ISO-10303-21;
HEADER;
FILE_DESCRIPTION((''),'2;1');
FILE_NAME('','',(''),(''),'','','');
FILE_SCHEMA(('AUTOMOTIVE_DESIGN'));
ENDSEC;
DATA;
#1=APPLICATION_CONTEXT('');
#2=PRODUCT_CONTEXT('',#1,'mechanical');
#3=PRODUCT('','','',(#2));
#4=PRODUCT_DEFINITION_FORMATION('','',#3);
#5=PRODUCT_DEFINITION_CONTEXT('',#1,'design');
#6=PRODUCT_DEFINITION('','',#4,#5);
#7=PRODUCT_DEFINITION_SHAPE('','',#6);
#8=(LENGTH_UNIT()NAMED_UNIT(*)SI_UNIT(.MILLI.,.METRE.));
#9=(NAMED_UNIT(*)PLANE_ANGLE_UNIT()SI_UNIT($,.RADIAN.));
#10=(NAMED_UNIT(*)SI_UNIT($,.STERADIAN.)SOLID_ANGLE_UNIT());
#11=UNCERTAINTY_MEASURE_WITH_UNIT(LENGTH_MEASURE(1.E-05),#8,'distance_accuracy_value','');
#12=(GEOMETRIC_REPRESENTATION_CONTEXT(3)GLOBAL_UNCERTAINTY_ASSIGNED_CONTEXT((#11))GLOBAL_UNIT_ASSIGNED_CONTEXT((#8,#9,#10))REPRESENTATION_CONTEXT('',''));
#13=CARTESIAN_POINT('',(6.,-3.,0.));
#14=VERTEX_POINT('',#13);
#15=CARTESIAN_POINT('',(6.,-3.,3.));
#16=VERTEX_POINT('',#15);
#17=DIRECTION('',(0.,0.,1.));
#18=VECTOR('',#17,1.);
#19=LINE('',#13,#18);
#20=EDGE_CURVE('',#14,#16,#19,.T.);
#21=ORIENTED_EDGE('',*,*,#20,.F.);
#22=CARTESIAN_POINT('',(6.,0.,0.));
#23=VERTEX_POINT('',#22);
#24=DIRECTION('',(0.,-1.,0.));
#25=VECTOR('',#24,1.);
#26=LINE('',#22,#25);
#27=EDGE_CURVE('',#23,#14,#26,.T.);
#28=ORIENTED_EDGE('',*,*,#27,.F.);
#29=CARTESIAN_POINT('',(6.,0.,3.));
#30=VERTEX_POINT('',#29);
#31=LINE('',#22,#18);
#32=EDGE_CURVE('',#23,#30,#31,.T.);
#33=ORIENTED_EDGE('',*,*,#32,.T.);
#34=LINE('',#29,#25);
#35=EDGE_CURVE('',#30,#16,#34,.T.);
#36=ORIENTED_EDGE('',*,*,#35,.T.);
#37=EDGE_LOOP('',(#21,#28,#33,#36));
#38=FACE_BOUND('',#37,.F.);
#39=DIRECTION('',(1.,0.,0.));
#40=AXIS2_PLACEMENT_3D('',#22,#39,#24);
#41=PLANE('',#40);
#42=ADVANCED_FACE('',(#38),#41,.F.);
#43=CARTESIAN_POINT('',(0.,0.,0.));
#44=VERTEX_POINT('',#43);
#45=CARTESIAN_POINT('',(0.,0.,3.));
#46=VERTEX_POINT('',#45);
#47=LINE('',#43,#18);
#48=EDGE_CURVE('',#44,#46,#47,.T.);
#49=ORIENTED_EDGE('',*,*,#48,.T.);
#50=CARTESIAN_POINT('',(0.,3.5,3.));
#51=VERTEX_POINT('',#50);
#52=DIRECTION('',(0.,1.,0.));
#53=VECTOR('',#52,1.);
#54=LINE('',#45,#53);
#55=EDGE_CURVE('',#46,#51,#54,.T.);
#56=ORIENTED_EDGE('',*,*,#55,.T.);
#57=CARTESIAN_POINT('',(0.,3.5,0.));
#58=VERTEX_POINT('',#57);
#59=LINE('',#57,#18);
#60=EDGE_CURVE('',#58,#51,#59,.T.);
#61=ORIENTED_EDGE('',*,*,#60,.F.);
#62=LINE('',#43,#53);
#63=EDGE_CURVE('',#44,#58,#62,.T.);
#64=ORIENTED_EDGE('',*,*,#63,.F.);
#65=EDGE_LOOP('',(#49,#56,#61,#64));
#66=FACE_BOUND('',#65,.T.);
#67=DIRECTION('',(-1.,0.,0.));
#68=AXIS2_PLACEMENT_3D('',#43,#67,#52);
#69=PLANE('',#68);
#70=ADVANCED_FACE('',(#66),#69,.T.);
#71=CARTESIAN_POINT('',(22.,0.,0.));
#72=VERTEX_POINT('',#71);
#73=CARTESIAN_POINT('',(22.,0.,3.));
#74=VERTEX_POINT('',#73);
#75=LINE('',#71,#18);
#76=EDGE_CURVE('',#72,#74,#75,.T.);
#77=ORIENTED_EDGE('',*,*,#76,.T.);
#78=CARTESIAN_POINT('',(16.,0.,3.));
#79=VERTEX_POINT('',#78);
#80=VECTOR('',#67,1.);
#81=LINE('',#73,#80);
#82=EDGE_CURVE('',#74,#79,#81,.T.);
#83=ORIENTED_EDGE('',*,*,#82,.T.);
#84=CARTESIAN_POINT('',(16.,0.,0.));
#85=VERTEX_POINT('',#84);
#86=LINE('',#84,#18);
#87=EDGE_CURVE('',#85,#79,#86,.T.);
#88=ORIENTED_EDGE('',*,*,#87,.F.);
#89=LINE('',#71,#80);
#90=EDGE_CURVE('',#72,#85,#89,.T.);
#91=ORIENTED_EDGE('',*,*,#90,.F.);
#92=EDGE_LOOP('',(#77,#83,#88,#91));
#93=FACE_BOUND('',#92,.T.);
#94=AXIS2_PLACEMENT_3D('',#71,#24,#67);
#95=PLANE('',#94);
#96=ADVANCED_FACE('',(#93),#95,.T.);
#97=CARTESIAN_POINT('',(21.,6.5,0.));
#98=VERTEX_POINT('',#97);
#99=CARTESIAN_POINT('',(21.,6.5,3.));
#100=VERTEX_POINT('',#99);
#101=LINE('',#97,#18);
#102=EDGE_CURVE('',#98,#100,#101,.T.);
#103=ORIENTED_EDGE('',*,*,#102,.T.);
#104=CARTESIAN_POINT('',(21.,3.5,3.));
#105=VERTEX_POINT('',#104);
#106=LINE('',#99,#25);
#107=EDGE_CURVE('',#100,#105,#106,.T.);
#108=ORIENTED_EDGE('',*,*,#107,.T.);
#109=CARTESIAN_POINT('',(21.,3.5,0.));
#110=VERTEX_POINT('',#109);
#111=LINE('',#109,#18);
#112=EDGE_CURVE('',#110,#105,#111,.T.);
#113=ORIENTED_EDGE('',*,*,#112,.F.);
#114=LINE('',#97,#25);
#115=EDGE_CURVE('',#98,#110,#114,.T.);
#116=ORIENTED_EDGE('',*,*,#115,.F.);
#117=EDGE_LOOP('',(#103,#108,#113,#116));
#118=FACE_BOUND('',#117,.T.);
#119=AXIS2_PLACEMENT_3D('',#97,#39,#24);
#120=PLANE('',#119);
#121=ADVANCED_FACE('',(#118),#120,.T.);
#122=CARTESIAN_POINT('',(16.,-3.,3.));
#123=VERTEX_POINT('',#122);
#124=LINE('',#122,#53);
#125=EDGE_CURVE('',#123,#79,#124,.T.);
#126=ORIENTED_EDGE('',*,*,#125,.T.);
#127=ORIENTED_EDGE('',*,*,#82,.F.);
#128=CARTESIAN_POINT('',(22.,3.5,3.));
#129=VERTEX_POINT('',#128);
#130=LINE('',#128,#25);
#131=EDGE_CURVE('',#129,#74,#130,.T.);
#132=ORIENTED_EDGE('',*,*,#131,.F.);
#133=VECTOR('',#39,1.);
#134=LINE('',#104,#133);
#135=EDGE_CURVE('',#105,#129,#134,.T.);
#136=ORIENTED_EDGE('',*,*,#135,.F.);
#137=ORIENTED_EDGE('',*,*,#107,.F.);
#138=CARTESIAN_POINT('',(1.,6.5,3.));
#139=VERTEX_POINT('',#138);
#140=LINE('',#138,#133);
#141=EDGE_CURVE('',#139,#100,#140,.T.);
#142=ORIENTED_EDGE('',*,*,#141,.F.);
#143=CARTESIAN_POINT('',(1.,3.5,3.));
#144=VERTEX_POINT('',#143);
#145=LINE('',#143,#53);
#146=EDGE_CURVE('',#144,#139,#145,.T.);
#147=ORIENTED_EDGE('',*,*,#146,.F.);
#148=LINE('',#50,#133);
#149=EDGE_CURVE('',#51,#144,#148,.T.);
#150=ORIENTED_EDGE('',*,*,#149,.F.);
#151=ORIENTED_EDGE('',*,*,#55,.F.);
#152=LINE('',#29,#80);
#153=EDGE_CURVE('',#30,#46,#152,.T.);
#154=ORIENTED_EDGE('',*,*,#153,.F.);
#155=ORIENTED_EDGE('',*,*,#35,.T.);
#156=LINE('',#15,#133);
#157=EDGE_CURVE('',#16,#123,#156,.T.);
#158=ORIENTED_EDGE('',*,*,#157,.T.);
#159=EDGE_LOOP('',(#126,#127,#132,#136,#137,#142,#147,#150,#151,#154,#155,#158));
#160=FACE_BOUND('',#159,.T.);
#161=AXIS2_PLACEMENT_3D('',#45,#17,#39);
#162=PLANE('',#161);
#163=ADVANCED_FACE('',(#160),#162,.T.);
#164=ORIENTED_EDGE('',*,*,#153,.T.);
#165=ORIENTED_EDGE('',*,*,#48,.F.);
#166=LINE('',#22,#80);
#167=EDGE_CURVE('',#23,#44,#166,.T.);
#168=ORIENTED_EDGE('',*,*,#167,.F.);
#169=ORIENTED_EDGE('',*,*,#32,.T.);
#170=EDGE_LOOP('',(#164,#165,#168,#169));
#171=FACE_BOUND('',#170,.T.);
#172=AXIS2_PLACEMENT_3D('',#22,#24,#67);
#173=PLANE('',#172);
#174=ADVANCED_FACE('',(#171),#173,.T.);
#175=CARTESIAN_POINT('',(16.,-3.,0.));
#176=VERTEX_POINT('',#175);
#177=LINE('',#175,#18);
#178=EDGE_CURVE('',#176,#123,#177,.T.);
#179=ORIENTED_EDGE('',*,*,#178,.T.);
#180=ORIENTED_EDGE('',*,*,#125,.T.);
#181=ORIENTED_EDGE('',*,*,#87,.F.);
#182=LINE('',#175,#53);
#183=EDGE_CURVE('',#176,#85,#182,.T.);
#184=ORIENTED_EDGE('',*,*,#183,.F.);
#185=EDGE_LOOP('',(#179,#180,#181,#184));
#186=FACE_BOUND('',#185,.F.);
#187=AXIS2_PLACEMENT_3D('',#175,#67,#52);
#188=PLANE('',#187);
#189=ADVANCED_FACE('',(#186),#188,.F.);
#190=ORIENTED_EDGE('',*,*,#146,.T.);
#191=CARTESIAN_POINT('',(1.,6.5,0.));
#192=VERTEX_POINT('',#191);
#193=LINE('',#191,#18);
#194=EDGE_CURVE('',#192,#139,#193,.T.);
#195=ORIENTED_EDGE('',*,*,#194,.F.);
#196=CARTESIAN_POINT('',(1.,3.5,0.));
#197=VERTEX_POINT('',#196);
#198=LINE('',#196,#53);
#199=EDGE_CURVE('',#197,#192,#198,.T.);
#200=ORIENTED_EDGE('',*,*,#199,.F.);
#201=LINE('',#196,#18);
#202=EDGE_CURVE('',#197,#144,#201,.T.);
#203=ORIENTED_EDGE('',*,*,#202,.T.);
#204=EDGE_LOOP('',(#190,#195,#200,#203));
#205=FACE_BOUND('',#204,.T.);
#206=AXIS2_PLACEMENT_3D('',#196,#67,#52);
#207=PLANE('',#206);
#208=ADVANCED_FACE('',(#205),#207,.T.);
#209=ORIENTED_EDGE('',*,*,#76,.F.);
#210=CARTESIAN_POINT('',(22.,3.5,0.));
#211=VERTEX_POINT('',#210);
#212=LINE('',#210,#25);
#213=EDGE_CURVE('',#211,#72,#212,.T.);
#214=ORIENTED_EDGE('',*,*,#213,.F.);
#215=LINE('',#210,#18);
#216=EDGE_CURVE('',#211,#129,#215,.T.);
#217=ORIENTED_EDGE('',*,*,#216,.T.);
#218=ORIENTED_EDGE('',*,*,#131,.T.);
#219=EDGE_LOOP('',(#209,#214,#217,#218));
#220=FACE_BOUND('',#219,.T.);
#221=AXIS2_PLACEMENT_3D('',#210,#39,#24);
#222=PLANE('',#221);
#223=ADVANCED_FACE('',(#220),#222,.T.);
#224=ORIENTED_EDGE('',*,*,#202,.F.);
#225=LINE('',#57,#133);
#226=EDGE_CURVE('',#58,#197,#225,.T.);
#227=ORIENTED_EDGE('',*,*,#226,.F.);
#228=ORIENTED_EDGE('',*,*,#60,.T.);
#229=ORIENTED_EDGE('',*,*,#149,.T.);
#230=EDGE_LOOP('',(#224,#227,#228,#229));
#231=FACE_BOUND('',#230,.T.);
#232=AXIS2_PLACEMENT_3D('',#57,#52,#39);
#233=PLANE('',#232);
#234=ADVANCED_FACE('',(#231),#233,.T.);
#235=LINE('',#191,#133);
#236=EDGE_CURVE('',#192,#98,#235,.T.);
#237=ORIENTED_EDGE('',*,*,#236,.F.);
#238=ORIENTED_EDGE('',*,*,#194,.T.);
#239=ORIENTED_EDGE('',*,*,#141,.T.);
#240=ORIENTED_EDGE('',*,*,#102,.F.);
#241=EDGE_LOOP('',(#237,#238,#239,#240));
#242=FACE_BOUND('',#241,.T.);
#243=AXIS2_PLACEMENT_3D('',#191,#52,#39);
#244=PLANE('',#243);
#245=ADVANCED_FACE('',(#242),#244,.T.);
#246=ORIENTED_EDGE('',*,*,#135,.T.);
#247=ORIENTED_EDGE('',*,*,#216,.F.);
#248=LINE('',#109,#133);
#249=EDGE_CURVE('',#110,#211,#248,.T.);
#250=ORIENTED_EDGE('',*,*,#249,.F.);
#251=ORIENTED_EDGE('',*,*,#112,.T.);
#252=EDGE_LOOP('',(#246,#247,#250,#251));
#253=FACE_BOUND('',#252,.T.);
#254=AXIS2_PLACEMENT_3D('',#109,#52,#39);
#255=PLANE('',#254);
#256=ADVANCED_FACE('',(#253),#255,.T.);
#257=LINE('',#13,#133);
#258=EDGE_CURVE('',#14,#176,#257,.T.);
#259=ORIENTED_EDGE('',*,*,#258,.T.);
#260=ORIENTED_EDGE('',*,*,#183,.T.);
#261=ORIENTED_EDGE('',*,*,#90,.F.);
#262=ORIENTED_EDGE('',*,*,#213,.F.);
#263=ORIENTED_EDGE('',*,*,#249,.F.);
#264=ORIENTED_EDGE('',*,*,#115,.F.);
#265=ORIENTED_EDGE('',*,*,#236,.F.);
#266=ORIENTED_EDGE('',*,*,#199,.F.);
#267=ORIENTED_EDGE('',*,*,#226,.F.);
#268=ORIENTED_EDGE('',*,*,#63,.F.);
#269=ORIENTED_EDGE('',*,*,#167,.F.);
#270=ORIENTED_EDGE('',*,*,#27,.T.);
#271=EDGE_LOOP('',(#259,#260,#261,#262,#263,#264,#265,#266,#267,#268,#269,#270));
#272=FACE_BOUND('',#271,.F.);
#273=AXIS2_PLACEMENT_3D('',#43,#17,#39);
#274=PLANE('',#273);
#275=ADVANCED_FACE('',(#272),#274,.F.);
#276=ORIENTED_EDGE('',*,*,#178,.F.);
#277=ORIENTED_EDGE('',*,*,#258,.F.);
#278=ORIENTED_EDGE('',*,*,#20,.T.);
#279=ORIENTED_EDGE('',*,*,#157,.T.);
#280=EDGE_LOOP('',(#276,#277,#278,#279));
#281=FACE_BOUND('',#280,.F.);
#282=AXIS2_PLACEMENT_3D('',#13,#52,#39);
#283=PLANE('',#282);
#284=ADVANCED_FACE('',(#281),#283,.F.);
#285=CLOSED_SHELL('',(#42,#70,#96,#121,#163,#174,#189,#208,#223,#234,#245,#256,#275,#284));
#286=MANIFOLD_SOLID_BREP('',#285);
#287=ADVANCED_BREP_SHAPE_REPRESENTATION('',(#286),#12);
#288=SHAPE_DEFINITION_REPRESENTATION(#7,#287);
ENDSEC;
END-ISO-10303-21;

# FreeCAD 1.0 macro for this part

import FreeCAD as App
import Part
import Sketcher

V = App.Vector
Q = App.Units.Quantity

doc = App.newDocument("Part")
body = doc.addObject("PartDesign::Body", "Body")

sketch1 = doc.addObject("Sketcher::SketchObject", "Sketch")
body.addObject(sketch1)
sketch1.AttachmentSupport = (doc.XY_Plane, [""])
sketch1.MapMode = "FlatFace"
sketch1.addGeometry([
    Part.LineSegment(V(22, 0, 0), V(22, 3.5, 0)),
    Part.LineSegment(V(22, 3.5, 0), V(21, 3.5, 0)),
    Part.LineSegment(V(21, 3.5, 0), V(21, 6.5, 0)),
    Part.LineSegment(V(21, 6.5, 0), V(1, 6.5, 0)),
    Part.LineSegment(V(1, 6.5, 0), V(1, 3.5, 0)),
    Part.LineSegment(V(1, 3.5, 0), V(0, 3.5, 0)),
    Part.LineSegment(V(0, 3.5, 0), V(0, 0, 0)),
    Part.LineSegment(V(0, 0, 0), V(6, 0, 0)),
    Part.LineSegment(V(6, 0, 0), V(6, -3, 0)),
    Part.LineSegment(V(6, -3, 0), V(16, -3, 0)),
    Part.LineSegment(V(16, -3, 0), V(16, 0, 0)),
    Part.LineSegment(V(16, 0, 0), V(22, 0, 0)),
], False)
sketch1.addConstraint([
    Sketcher.Constraint("Coincident", 0, 2, 1, 1),
    Sketcher.Constraint("Coincident", 1, 2, 2, 1),
    Sketcher.Constraint("Coincident", 2, 2, 3, 1),
    Sketcher.Constraint("Coincident", 3, 2, 4, 1),
    Sketcher.Constraint("Coincident", 4, 2, 5, 1),
    Sketcher.Constraint("Coincident", 5, 2, 6, 1),
    Sketcher.Constraint("Coincident", 6, 2, 7, 1),
    Sketcher.Constraint("Coincident", 7, 2, 8, 1),
    Sketcher.Constraint("Coincident", 8, 2, 9, 1),
    Sketcher.Constraint("Coincident", 9, 2, 10, 1),
    Sketcher.Constraint("Coincident", 10, 2, 11, 1),
    Sketcher.Constraint("Coincident", 11, 2, 0, 1),
    Sketcher.Constraint("Vertical", 0),
    Sketcher.Constraint("Horizontal", 1),
    Sketcher.Constraint("Vertical", 2),
    Sketcher.Constraint("Horizontal", 3),
    Sketcher.Constraint("Vertical", 4),
    Sketcher.Constraint("Horizontal", 5),
    Sketcher.Constraint("Vertical", 6),
    Sketcher.Constraint("Horizontal", 7),
    Sketcher.Constraint("Vertical", 8),
    Sketcher.Constraint("Horizontal", 9),
    Sketcher.Constraint("Vertical", 10),
    Sketcher.Constraint("Horizontal", 11),
    Sketcher.Constraint("Coincident", 6, 2, -1, 1),
    Sketcher.Constraint("PointOnObject", 10, 2, -1),
    Sketcher.Constraint("Horizontal", 1, 2, 4, 2),
    Sketcher.Constraint("Equal", 1, 5),
    Sketcher.Constraint("Equal", 7, 11),
    Sketcher.Constraint("Equal", 4, 8),
    Sketcher.Constraint("DistanceX", 1, 2, 1, 1, Q("1 mm")),
    Sketcher.Constraint("DistanceX", 3, 2, 3, 1, Q("20 mm")),
    Sketcher.Constraint("DistanceX", 7, 1, 7, 2, Q("6 mm")),
    Sketcher.Constraint("DistanceY", 2, 1, 2, 2, Q("3 mm")),
    Sketcher.Constraint("DistanceY", 0, 1, 0, 2, Q("3.5 mm")),
])
pad1 = doc.addObject("PartDesign::Pad", "Pad")
body.addObject(pad1)
pad1.Profile = sketch1
pad1.Length = 3

doc.recompute()
